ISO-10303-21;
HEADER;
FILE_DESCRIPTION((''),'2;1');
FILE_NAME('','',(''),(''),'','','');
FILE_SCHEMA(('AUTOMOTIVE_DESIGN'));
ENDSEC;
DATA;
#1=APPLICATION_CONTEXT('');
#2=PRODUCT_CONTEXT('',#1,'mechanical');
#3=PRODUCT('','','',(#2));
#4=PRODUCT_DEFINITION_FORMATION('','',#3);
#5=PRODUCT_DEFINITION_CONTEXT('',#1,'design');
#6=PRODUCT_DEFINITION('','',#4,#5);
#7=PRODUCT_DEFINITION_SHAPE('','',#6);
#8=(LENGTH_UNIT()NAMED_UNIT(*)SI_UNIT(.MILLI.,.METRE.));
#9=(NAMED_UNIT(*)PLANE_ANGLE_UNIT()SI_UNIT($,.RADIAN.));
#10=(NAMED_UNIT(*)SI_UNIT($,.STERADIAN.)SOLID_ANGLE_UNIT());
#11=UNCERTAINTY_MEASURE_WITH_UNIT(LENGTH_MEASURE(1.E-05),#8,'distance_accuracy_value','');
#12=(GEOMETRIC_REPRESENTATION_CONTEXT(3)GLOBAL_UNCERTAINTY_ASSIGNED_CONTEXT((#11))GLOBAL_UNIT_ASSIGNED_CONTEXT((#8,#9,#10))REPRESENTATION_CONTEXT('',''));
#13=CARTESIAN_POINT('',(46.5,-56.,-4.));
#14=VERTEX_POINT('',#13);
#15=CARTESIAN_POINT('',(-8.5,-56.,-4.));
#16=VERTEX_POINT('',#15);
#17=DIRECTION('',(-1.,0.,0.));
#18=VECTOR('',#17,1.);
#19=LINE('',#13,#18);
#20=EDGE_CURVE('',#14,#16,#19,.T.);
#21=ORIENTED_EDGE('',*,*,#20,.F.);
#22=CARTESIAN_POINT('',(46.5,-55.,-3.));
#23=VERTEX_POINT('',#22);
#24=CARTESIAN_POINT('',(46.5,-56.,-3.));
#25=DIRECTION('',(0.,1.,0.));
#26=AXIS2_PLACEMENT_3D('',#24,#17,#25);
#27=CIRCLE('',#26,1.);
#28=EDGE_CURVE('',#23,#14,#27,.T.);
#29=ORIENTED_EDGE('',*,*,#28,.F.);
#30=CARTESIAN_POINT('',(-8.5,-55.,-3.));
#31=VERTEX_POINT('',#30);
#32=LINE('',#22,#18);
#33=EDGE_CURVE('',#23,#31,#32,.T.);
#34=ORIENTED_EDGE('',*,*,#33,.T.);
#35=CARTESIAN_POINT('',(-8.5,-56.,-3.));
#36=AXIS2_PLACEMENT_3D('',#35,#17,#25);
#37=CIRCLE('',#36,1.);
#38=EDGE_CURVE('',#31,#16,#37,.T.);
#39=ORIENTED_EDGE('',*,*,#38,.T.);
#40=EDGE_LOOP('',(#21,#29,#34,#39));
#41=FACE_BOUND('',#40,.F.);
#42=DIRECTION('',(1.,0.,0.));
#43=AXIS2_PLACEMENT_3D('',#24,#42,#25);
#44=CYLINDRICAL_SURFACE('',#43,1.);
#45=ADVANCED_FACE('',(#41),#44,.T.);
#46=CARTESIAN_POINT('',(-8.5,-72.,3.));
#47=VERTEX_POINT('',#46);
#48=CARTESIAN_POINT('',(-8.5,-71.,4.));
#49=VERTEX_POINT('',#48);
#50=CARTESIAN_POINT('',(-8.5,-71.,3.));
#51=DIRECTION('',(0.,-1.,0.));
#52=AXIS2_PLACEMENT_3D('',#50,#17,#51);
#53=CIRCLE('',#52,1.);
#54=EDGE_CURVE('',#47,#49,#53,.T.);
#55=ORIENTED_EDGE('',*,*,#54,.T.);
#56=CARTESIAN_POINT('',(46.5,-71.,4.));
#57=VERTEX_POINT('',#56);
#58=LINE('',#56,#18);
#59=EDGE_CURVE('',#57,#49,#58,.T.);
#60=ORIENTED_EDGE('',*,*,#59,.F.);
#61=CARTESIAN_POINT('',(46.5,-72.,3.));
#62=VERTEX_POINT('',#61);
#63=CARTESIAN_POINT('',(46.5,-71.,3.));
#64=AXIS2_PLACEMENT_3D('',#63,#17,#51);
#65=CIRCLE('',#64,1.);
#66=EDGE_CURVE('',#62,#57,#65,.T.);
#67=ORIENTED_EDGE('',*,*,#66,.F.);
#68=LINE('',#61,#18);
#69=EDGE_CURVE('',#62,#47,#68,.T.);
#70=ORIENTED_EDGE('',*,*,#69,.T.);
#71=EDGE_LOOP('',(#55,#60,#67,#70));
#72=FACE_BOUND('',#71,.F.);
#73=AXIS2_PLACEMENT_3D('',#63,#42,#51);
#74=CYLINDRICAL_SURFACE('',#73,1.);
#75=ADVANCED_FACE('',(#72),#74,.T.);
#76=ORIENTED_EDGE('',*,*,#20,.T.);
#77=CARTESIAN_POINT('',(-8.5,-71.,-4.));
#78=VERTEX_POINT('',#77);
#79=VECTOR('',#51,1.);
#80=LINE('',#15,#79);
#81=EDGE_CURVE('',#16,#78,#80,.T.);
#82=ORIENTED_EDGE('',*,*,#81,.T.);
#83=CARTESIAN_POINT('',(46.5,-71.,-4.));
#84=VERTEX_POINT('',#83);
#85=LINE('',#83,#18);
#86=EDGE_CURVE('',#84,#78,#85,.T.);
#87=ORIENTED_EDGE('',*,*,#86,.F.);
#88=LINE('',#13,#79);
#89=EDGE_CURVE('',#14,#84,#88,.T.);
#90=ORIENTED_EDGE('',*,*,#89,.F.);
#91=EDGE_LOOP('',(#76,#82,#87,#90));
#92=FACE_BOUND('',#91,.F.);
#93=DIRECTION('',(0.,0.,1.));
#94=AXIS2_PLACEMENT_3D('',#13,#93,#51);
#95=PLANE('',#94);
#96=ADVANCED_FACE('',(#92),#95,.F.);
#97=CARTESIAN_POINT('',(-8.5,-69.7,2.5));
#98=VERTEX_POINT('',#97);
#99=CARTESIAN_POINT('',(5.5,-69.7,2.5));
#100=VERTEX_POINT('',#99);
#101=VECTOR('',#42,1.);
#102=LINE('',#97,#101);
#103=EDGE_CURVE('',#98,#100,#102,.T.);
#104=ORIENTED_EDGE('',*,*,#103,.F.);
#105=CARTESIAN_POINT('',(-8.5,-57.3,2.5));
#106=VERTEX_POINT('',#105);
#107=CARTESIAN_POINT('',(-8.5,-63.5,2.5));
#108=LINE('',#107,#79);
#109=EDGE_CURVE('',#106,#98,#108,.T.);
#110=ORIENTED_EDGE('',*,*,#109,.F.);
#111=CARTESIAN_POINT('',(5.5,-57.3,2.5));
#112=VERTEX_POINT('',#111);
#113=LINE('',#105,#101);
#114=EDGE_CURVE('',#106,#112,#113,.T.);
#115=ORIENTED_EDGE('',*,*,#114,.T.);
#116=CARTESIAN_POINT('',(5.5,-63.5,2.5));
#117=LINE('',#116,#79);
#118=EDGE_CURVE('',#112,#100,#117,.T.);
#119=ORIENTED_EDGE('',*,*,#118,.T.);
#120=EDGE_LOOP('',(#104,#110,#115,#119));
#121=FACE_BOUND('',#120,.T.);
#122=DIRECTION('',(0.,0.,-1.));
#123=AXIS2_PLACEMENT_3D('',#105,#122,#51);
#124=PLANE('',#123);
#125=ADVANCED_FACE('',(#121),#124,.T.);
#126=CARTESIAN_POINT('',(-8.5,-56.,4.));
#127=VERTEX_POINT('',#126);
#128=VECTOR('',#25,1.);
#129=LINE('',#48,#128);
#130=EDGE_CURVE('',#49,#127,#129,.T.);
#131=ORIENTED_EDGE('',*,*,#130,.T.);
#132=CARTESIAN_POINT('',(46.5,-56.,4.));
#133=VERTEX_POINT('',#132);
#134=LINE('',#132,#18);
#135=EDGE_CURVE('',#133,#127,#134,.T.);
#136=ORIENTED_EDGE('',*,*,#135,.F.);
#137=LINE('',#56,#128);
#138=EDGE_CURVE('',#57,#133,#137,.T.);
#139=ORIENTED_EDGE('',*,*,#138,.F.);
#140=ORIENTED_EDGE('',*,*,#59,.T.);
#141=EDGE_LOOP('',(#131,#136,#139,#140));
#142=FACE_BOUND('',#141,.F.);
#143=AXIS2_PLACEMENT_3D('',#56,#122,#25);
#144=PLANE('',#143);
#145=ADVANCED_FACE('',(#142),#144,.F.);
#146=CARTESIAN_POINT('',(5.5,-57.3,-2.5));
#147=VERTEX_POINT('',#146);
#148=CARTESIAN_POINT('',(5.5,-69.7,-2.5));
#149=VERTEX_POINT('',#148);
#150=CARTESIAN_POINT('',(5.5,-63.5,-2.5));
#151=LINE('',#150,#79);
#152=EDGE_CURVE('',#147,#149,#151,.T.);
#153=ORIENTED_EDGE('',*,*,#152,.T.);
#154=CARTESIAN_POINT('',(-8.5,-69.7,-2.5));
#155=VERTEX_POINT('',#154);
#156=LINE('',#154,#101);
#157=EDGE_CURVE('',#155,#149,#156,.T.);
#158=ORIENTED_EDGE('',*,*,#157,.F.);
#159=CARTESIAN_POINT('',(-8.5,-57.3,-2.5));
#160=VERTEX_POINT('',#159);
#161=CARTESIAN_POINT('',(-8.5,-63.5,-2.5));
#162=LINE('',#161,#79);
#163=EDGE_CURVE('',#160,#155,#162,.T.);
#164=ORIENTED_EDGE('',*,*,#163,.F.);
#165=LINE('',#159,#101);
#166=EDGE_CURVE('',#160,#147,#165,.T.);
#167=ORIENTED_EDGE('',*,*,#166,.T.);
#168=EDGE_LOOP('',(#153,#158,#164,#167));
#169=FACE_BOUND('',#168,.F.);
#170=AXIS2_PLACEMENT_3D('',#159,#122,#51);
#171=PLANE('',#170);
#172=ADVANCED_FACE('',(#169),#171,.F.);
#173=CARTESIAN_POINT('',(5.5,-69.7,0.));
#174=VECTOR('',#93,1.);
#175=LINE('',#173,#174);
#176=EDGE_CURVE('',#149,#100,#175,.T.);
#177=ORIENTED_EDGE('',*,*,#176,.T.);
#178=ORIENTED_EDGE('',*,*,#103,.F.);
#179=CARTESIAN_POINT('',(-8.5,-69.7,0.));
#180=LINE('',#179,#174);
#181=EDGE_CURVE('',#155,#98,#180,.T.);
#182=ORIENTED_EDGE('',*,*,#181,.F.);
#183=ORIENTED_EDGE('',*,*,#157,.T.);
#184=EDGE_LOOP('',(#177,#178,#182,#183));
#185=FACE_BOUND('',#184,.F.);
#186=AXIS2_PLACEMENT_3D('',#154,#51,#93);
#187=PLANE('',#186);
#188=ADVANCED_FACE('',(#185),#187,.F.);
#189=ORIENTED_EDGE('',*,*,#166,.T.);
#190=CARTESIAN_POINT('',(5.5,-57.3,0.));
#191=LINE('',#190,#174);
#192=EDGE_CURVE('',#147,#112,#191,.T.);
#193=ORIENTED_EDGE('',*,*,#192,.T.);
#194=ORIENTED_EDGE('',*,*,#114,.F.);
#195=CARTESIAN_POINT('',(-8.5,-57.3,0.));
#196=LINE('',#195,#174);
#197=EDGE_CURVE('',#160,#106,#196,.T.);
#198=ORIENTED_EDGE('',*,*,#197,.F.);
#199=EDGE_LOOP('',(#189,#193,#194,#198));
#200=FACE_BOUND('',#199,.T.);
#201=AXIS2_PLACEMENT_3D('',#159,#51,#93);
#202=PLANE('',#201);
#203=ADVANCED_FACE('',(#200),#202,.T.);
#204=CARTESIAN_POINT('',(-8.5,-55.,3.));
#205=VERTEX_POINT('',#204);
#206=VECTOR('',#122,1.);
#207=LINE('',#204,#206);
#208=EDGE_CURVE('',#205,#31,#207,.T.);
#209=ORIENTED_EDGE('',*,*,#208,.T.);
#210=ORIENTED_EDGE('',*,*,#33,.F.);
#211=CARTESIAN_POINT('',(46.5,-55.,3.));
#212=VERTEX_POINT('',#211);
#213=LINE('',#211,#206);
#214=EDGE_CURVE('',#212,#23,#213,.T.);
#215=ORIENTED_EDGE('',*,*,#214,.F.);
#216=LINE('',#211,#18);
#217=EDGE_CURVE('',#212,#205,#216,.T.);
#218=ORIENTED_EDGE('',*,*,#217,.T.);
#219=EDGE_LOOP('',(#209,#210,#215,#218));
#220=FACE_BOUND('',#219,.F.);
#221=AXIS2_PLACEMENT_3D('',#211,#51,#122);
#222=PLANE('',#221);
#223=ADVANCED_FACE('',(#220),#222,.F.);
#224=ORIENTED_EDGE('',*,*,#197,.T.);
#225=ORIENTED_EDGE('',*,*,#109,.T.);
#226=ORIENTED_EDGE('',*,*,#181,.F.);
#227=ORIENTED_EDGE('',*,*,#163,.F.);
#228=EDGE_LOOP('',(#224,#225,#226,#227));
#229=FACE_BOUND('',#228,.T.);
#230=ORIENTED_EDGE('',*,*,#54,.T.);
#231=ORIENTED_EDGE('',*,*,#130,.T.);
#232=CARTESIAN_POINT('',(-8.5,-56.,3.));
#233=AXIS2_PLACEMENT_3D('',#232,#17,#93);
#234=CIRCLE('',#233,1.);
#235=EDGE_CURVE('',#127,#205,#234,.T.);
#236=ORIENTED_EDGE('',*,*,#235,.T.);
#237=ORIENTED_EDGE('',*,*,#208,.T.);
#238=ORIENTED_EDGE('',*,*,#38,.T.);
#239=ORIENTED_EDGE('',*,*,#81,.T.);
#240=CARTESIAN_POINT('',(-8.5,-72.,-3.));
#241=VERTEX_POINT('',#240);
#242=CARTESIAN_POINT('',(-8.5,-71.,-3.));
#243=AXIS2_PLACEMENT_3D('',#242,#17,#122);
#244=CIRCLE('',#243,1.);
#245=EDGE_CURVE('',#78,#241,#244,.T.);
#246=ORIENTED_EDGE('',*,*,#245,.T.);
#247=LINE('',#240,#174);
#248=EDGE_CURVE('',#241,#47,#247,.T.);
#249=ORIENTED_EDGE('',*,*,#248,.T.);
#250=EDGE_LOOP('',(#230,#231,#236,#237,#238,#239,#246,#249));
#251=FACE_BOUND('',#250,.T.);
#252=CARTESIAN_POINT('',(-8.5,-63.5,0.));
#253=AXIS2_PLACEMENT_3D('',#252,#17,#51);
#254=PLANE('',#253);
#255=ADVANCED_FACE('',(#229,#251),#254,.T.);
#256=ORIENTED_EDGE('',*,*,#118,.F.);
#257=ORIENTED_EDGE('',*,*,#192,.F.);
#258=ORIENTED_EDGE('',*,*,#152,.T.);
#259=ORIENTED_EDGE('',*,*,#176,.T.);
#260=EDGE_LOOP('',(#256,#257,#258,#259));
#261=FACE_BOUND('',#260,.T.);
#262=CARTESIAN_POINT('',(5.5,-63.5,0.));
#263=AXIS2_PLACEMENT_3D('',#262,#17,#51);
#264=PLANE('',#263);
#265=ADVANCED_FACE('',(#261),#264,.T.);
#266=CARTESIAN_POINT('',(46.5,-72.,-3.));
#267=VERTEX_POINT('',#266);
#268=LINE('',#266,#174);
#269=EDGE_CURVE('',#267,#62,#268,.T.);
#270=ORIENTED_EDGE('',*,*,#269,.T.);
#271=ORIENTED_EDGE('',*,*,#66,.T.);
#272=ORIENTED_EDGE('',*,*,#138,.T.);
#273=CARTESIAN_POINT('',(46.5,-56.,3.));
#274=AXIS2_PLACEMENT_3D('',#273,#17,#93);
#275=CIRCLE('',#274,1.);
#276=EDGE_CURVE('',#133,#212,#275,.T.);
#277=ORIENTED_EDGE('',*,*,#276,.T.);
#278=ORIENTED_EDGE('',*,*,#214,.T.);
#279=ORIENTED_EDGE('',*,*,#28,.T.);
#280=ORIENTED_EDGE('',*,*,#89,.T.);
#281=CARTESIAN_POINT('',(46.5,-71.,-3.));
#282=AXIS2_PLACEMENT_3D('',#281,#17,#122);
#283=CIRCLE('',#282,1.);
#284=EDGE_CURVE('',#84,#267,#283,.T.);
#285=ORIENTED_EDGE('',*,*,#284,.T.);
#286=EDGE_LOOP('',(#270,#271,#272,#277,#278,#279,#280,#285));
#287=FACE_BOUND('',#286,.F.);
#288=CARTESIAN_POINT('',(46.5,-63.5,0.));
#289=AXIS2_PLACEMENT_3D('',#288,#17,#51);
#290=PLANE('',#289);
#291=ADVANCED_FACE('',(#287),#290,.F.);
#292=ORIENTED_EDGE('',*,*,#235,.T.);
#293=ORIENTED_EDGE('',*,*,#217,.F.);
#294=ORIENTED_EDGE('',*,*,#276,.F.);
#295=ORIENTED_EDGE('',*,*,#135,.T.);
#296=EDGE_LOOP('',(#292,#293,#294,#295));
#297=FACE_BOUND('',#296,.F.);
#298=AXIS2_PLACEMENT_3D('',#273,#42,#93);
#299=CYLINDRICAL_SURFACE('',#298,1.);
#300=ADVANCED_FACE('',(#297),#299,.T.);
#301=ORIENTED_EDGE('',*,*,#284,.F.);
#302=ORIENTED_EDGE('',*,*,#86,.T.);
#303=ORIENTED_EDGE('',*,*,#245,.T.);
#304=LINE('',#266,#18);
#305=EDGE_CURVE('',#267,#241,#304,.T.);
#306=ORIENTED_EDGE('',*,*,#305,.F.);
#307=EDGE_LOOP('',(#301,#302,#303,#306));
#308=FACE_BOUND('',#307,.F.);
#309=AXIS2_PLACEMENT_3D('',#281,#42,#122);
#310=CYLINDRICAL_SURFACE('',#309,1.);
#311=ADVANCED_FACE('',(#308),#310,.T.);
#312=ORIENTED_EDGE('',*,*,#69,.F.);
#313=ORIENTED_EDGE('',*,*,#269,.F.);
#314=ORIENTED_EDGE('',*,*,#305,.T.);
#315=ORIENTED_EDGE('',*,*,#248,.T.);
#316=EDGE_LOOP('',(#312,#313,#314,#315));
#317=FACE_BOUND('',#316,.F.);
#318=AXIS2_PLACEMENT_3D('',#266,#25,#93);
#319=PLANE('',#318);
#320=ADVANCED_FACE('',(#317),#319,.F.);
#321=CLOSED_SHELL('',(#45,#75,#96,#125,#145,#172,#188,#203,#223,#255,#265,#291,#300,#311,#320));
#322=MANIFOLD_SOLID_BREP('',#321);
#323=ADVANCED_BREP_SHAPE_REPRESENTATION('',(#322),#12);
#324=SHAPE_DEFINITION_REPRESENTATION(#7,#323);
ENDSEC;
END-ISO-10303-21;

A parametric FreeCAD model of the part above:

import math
import FreeCAD as App
import Part
import Sketcher

V = App.Vector
Q = App.Units.Quantity


def add_polygon(sketch, points):
    """Adds a closed chain of lines whose ends are joined by coincident constraints."""
    first, n = sketch.GeometryCount, len(points)
    for a, b in zip(points, points[1:] + points[:1]):
        sketch.addGeometry(Part.LineSegment(App.Vector(*a, 0), App.Vector(*b, 0)), False)
    for i in range(n):
        sketch.addConstraint(Sketcher.Constraint("Coincident", first + i, 2, first + (i + 1) % n, 1))

doc = App.newDocument("Part")
body = doc.addObject("PartDesign::Body", "Body")

sketch1 = doc.addObject("Sketcher::SketchObject", "Sketch")
body.addObject(sketch1)
sketch1.AttachmentSupport = (doc.XZ_Plane, [""])
sketch1.MapMode = "FlatFace"
sketch1.addGeometry([
    Part.LineSegment(V(7.5, 4, 0), V(-7.5, 4, 0)),
    Part.ArcOfCircle(Part.Circle(V(-7.5, 3, 0), V(0, 0, 1), 1), math.radians(90), math.radians(180)),
    Part.LineSegment(V(-8.5, 3, 0), V(-8.5, -3, 0)),
    Part.ArcOfCircle(Part.Circle(V(-7.5, -3, 0), V(0, 0, 1), 1), math.radians(180), math.radians(270)),
    Part.LineSegment(V(-7.5, -4, 0), V(7.5, -4, 0)),
    Part.ArcOfCircle(Part.Circle(V(7.5, -3, 0), V(0, 0, 1), 1), math.radians(-90), math.radians(0)),
    Part.LineSegment(V(8.5, -3, 0), V(8.5, 3, 0)),
    Part.ArcOfCircle(Part.Circle(V(7.5, 3, 0), V(0, 0, 1), 1), math.radians(0), math.radians(90)),
], False)
sketch1.addConstraint([
    Sketcher.Constraint("Tangent", 0, 2, 1, 1),
    Sketcher.Constraint("Tangent", 1, 2, 2, 1),
    Sketcher.Constraint("Tangent", 2, 2, 3, 1),
    Sketcher.Constraint("Tangent", 3, 2, 4, 1),
    Sketcher.Constraint("Tangent", 4, 2, 5, 1),
    Sketcher.Constraint("Tangent", 5, 2, 6, 1),
    Sketcher.Constraint("Tangent", 6, 2, 7, 1),
    Sketcher.Constraint("Tangent", 7, 2, 0, 1),
    Sketcher.Constraint("Horizontal", 0),
    Sketcher.Constraint("Vertical", 2),
    Sketcher.Constraint("Horizontal", 4),
    Sketcher.Constraint("Vertical", 6),
    Sketcher.Constraint("Equal", 1, 3),
    Sketcher.Constraint("Equal", 3, 5),
    Sketcher.Constraint("Equal", 5, 7),
    Sketcher.Constraint("Symmetric", 1, 3, 5, 3, -1, 1),
    Sketcher.Constraint("Radius", 1, Q("1 mm")),
    Sketcher.Constraint("DistanceX", 0, 2, 0, 1, Q("15 mm")),
    Sketcher.Constraint("DistanceY", 2, 2, 2, 1, Q("6 mm")),
])
pad1 = doc.addObject("PartDesign::Pad", "Pad")
body.addObject(pad1)
pad1.Profile = sketch1
pad1.Length = 55

sketch2 = doc.addObject("Sketcher::SketchObject", "Sketch001")
body.addObject(sketch2)
sketch2.AttachmentSupport = (doc.XZ_Plane, [""])
sketch2.MapMode = "FlatFace"
sketch2.AttachmentOffset = App.Placement(V(0, 0, 55), App.Rotation())
add_polygon(sketch2, [(-6, 2), (-6, -2), (6, -2), (6, 2)])
sketch2.addConstraint([
    Sketcher.Constraint("Vertical", 0),
    Sketcher.Constraint("Horizontal", 1),
    Sketcher.Constraint("Vertical", 2),
    Sketcher.Constraint("Horizontal", 3),
    Sketcher.Constraint("Symmetric", 0, 2, 2, 2, -1, 1),
    Sketcher.Constraint("DistanceY", 0, 2, 0, 1, Q("5 mm")),
    Sketcher.Constraint("DistanceX", 1, 1, 1, 2, Q("12.4 mm")),
])
pocket1 = doc.addObject("PartDesign::Pocket", "Pocket")
body.addObject(pocket1)
pocket1.Profile = sketch2
pocket1.Length = 14
body2 = doc.addObject("PartDesign::Body", "Body001")
doc.recompute()

body.Placement = App.Placement(V(46.5, -63.5, 0), App.Rotation(V(0, 0, -1), 90))
boolean = doc.addObject("PartDesign::Boolean", "Boolean")
body2.addObject(boolean)
boolean.Type = "Fuse"
boolean.addObjects([body])

doc.recompute()
